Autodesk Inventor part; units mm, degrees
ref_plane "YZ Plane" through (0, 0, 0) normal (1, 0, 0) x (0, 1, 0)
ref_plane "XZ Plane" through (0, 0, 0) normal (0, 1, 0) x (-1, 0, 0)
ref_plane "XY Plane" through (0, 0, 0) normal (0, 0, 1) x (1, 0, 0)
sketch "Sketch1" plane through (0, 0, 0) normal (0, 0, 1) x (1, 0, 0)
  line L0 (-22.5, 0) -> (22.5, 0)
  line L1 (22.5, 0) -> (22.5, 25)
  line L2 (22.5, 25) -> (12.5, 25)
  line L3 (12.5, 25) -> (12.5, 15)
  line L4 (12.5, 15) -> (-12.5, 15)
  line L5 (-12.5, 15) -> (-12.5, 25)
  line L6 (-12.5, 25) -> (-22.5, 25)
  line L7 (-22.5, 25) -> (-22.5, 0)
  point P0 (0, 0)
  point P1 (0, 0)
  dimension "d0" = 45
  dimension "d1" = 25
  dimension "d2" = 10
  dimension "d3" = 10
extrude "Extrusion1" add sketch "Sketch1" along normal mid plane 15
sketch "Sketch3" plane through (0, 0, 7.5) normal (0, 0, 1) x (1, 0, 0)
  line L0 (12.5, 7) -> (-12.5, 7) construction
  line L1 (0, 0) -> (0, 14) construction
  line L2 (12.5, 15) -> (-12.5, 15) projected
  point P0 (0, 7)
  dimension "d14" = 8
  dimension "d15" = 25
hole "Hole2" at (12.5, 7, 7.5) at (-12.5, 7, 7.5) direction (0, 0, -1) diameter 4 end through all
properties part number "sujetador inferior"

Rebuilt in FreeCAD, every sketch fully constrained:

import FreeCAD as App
import Part
import Sketcher

V = App.Vector


def add_polygon(sketch, points):
    """Adds a closed chain of lines whose ends are joined by coincident constraints."""
    first, n = sketch.GeometryCount, len(points)
    for a, b in zip(points, points[1:] + points[:1]):
        sketch.addGeometry(Part.LineSegment(App.Vector(*a, 0), App.Vector(*b, 0)), False)
    for i in range(n):
        sketch.addConstraint(Sketcher.Constraint("Coincident", first + i, 2, first + (i + 1) % n, 1))

doc = App.newDocument("Part")
body = doc.addObject("PartDesign::Body", "Body")

sketch1 = body.newObject("Sketcher::SketchObject", "Sketch")
sketch1.AttachmentSupport = (doc.getObject("XY_Plane"), [""])
sketch1.MapMode = "FlatFace"
add_polygon(sketch1, [(-22, 25), (-22, 0), (22, 0), (22, 25), (12, 25), (12, 15), (-12, 15), (-12, 25)])
sketch1.addConstraint([
    Sketcher.Constraint("Vertical", 0),
    Sketcher.Constraint("Horizontal", 1),
    Sketcher.Constraint("Vertical", 2),
    Sketcher.Constraint("Horizontal", 3),
    Sketcher.Constraint("Vertical", 4),
    Sketcher.Constraint("Horizontal", 5),
    Sketcher.Constraint("Vertical", 6),
    Sketcher.Constraint("Horizontal", 7),
    Sketcher.Constraint("Symmetric", 0, 2, 1, 2, -1, 1),
    Sketcher.Constraint("Symmetric", 3, 2, 6, 2, -2),
    Sketcher.Constraint("Equal", 5, 0),
    Sketcher.Constraint("Equal", 7, 4),
    Sketcher.Constraint("DistanceX", 1, 1, 1, 2, 45.0),
    Sketcher.Constraint("DistanceX", 3, 2, 3, 1, 10.0),
])
pad1 = body.newObject("PartDesign::Pad", "Pad")
pad1.Profile = sketch1
pad1.Length = 15
pad1.Midplane = True

sketch2 = body.newObject("Sketcher::SketchObject", "Sketch001")
sketch2.AttachmentSupport = (doc.getObject("XY_Plane"), [""])
sketch2.MapMode = "FlatFace"
sketch2.AttachmentOffset = App.Placement(V(0, 0, 7.5), App.Rotation())
sketch2.addGeometry([
    Part.Circle(V(12.5, 7, 0), V(0, 0, 1), 2),
    Part.Circle(V(-12.5, 7, 0), V(0, 0, 1), 2),
], False)
sketch2.addConstraint([
    Sketcher.Constraint("Equal", 0, 1),
    Sketcher.Constraint("Symmetric", 0, 3, 1, 3, -2),
    Sketcher.Constraint("Diameter", 0, 4.0),
    Sketcher.Constraint("DistanceY", -1, 1, 0, 3, 7.0),
    Sketcher.Constraint("DistanceX", 1, 3, 0, 3, 25.0),
])
doc.recompute()
hole = body.newObject("PartDesign::Hole", "Hole")
hole.Profile = sketch2
hole.ThreadType = "None"
hole.Diameter = 4
hole.DepthType = "ThroughAll"

doc.recompute()
